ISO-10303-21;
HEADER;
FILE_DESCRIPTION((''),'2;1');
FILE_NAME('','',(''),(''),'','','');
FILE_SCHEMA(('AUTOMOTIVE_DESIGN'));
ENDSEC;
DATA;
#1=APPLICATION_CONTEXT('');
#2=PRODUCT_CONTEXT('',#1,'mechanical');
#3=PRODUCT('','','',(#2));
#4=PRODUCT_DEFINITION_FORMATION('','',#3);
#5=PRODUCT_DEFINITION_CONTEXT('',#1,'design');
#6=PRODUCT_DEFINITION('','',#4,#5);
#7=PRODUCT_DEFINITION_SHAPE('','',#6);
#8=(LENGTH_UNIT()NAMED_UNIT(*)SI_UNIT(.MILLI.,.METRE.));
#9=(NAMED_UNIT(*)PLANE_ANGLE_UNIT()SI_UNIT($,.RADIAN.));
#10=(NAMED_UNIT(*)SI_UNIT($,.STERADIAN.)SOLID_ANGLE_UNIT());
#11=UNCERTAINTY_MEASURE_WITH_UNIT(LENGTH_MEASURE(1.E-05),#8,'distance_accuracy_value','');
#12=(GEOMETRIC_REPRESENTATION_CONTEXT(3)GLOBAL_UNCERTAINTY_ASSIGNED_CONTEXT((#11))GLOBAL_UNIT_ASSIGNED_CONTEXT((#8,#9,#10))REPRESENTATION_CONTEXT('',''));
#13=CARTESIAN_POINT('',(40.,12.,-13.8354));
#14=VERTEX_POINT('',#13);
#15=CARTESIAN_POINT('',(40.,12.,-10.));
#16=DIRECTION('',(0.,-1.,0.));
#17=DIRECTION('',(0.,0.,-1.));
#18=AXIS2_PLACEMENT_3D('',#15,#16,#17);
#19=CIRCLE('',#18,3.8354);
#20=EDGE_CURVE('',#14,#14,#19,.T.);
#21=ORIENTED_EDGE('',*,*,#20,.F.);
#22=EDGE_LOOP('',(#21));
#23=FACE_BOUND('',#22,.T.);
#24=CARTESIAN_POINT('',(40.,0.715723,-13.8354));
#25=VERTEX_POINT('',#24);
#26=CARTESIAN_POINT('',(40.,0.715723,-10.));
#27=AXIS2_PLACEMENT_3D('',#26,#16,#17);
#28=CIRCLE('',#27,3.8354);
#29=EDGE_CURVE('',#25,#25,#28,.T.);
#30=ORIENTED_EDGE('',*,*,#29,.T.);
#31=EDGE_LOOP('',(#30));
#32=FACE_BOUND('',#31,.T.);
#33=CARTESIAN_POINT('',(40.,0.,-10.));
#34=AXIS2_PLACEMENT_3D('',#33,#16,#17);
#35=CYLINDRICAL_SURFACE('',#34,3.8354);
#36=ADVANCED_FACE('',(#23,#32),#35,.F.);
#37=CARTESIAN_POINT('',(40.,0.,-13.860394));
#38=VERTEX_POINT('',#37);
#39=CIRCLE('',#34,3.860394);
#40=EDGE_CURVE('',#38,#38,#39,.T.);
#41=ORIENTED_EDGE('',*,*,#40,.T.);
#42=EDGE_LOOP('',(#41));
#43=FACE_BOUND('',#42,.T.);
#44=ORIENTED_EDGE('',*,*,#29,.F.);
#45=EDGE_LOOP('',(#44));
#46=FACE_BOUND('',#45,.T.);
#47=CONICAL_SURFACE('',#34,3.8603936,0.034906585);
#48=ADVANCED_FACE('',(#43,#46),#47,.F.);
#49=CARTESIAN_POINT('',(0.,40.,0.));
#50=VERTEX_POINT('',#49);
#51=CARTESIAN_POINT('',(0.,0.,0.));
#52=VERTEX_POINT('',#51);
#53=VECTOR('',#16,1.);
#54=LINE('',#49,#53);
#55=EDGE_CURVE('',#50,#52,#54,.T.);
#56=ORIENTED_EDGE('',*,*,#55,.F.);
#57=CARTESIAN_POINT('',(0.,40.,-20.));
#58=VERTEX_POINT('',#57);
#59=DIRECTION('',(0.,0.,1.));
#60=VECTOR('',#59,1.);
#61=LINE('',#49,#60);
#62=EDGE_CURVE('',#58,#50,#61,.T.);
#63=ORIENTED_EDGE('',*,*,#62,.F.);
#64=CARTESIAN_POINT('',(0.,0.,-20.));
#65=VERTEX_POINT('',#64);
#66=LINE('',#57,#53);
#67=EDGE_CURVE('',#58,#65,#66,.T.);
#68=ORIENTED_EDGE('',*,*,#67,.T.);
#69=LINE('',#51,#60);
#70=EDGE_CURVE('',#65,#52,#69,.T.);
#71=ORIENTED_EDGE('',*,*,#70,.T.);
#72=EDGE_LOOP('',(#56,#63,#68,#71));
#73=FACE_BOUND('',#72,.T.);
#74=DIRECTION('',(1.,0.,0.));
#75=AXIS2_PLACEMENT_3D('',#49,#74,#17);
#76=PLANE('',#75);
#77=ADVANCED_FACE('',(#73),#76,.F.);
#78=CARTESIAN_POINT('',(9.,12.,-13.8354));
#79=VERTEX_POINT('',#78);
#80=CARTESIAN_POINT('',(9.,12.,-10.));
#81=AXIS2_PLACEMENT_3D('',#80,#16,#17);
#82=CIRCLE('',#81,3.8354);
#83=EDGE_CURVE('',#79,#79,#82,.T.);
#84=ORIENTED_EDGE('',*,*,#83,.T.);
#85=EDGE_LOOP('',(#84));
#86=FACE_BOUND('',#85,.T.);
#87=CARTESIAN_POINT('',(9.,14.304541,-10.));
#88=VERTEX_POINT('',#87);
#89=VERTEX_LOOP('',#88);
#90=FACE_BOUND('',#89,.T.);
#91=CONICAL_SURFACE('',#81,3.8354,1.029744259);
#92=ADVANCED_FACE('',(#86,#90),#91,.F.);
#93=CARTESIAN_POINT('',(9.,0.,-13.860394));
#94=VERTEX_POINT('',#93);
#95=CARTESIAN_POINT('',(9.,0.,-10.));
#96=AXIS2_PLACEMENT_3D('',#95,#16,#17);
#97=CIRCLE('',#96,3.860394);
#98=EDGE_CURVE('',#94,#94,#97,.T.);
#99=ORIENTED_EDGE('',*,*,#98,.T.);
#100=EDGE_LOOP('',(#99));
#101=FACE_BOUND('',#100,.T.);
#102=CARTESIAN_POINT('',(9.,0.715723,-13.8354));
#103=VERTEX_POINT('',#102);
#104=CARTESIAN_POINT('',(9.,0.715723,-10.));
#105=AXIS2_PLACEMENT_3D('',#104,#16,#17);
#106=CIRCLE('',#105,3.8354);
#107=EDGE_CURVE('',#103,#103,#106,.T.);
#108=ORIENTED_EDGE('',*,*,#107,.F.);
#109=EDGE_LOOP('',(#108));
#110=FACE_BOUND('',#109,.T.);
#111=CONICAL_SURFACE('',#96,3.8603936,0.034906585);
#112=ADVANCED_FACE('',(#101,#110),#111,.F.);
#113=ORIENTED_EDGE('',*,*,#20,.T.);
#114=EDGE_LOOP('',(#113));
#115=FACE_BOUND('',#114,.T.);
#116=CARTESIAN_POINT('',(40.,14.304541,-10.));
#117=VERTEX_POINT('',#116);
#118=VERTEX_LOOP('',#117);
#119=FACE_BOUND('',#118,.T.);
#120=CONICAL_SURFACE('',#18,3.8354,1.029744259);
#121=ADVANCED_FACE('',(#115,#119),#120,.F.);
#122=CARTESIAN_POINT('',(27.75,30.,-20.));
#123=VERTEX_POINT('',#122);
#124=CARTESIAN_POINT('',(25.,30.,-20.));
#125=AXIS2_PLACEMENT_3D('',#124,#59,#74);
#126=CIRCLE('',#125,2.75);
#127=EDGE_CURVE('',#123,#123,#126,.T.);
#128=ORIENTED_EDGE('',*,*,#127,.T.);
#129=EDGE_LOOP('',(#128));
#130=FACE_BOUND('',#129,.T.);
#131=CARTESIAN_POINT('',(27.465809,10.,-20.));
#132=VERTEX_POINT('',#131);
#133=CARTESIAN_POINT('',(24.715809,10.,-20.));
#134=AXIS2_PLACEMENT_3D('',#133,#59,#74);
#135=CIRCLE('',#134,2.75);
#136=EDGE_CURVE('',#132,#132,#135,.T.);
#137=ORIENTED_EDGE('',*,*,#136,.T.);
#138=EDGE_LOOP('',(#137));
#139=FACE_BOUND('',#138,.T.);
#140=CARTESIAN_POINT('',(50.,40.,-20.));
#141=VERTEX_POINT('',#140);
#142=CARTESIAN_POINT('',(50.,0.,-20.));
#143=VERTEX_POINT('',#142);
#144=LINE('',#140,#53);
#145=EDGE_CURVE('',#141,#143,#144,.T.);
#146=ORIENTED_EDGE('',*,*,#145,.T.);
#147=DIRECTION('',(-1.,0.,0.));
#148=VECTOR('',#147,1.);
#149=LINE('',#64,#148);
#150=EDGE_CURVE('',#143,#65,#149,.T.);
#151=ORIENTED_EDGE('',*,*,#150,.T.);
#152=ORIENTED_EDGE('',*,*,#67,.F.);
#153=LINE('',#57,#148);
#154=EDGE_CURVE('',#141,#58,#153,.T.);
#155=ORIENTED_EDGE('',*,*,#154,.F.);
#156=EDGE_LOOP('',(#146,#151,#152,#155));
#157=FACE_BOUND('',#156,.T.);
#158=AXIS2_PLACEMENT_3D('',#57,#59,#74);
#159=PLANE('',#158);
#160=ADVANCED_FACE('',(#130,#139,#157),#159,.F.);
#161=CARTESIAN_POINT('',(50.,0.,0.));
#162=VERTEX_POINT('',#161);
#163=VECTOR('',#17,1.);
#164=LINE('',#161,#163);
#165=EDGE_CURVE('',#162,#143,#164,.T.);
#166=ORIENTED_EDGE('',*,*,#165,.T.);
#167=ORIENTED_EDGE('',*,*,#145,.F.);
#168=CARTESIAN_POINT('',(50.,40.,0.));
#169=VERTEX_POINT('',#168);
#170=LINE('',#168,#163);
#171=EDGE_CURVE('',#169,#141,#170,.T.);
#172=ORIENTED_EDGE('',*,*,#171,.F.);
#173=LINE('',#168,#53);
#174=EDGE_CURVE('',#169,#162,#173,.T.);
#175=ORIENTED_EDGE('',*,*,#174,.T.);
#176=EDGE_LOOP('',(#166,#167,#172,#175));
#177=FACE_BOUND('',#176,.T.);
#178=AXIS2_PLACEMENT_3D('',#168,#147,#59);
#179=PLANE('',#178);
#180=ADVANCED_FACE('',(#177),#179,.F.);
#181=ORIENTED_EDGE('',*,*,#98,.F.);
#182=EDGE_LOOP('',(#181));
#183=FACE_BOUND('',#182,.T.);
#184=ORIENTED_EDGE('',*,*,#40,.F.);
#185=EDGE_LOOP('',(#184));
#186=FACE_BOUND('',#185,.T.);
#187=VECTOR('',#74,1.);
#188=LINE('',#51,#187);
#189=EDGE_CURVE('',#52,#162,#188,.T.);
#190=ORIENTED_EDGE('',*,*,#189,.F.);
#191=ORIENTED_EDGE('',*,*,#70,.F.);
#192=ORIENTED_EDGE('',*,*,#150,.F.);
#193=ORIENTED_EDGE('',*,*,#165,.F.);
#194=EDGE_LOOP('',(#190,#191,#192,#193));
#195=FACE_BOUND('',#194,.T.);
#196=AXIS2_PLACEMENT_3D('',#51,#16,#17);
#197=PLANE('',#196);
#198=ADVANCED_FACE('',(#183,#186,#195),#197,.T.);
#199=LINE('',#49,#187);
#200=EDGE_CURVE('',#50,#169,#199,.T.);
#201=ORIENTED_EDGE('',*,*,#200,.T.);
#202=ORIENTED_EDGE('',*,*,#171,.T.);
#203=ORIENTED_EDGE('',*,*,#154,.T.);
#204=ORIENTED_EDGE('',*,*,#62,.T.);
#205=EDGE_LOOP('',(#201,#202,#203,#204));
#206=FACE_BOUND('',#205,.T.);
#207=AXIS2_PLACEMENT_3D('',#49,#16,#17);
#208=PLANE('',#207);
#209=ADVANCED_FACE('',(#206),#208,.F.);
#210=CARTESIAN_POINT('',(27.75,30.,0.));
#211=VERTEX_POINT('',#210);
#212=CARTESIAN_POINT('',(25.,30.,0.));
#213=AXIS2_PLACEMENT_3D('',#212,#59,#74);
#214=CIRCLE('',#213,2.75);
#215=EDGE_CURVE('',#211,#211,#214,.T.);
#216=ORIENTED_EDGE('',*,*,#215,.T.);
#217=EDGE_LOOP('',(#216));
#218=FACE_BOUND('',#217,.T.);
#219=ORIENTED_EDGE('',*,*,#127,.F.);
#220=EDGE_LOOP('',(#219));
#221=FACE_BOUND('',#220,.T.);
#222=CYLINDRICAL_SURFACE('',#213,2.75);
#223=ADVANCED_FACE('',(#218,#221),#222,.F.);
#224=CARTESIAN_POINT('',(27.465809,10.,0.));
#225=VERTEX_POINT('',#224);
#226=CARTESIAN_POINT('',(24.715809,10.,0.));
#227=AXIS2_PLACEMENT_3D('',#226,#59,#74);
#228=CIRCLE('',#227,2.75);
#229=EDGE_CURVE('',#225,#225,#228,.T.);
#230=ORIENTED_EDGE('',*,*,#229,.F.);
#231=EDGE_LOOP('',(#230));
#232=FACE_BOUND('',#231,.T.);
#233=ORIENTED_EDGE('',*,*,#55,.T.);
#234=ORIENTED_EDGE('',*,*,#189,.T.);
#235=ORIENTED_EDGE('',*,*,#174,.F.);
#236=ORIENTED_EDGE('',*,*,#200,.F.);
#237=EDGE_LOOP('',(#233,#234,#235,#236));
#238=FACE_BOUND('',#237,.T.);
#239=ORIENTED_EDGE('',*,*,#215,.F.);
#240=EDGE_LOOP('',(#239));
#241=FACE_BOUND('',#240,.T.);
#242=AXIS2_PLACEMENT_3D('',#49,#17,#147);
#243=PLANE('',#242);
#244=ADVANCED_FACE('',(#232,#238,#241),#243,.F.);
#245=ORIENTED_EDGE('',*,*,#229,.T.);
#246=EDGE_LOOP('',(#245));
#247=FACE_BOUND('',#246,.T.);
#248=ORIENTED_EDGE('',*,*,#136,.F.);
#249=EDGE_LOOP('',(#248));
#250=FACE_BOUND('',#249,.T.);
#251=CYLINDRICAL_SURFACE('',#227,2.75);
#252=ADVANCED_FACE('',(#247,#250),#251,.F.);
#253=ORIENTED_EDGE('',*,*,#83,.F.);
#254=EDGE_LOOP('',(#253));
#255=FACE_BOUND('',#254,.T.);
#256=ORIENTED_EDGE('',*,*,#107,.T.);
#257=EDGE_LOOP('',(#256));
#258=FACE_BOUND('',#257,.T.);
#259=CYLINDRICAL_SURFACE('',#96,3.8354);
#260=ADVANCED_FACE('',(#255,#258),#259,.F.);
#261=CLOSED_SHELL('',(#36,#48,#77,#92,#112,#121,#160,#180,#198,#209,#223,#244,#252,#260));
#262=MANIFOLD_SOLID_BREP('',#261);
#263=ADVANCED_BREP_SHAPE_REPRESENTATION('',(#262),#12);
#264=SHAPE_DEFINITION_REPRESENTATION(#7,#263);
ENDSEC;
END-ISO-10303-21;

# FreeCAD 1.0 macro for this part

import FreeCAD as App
import Part
import Sketcher
from FreeCAD import Vector
Q = App.Units.Quantity

doc = App.newDocument("Part")
params = doc.addObject("Spreadsheet::Sheet", "Params")
for row, (alias, value) in enumerate([
    ("sketch1_width", "50 mm"),
    ("sketch1_height", "20 mm"),
    ("pad1_length", "40 mm"),
    ("sketch2_diameter", "5.5 mm"),
    ("hole_diameter", "5.5 mm"),
    ("groove_angle", "360 deg"),
    ("linearpattern_pitch", "31 mm"),
], start=1):
    params.set(f"A{row}", alias)
    params.set(f"B{row}", "=" + value)
    params.setAlias(f"B{row}", alias)

body = doc.addObject("PartDesign::Body", "Body")

# Sketch on XZ plane
sketch1 = body.newObject("Sketcher::SketchObject", "Sketch")
sketch1.AttachmentSupport = (doc.getObject("XZ_Plane"), [""])
sketch1.MapMode = "FlatFace"
sketch1.addGeometry([
    Part.LineSegment(Vector(0, -20, 0), Vector(0, 0, 0)),
    Part.LineSegment(Vector(0, 0, 0), Vector(50, 0, 0)),
    Part.LineSegment(Vector(50, 0, 0), Vector(50, -20, 0)),
    Part.LineSegment(Vector(50, -20, 0), Vector(0, -20, 0)),
], False)
sketch1.addConstraint([
    Sketcher.Constraint("Coincident", 0, 2, 1, 1),
    Sketcher.Constraint("Coincident", 1, 2, 2, 1),
    Sketcher.Constraint("Coincident", 2, 2, 3, 1),
    Sketcher.Constraint("Coincident", 3, 2, 0, 1),
    Sketcher.Constraint("Vertical", 0),
    Sketcher.Constraint("Horizontal", 1),
    Sketcher.Constraint("Vertical", 2),
    Sketcher.Constraint("Horizontal", 3),
    Sketcher.Constraint("Coincident", 0, 2, -1, 1),
    Sketcher.Constraint("DistanceX", 1, 1, 1, 2, 50.0),
    Sketcher.Constraint("DistanceY", 0, 1, 0, 2, 20.0),
])
sketch1.setExpression("Constraints[9]", "Params.sketch1_width")
sketch1.setExpression("Constraints[10]", "Params.sketch1_height")
pad1 = body.newObject("PartDesign::Pad", "Pad")
pad1.Profile = sketch1
pad1.setExpression("Length", "Params.pad1_length")
pad1.Reversed = True

# Sketch on XY plane
sketch2 = body.newObject("Sketcher::SketchObject", "Sketch001")
sketch2.AttachmentSupport = (doc.getObject("XY_Plane"), [""])
sketch2.MapMode = "FlatFace"
sketch2.addGeometry([
    Part.Circle(Vector(25, 30, 0), Vector(0, 0, 1), 2.75),
    Part.Circle(Vector(24.715809, 10, 0), Vector(0, 0, 1), 2.75),
], False)
sketch2.addConstraint([
    Sketcher.Constraint("Equal", 0, 1),
    Sketcher.Constraint("Diameter", 0, 5.5),
    Sketcher.Constraint("DistanceX", -1, 1, 0, 3, 25.0),
    Sketcher.Constraint("DistanceY", -1, 1, 0, 3, 30.0),
    Sketcher.Constraint("DistanceY", -1, 1, 1, 3, 10.0),
    Sketcher.Constraint("DistanceX", -1, 1, 1, 3, 24.715809),
])
sketch2.setExpression("Constraints[1]", "Params.sketch2_diameter")
doc.recompute()
hole = body.newObject("PartDesign::Hole", "Hole")
hole.Profile = sketch2
hole.ThreadType = "None"
hole.setExpression("Diameter", "Params.hole_diameter")
hole.DepthType = "ThroughAll"

# Sketch on YZ plane
sketch3 = body.newObject("Sketcher::SketchObject", "Sketch002")
sketch3.AttachmentSupport = (doc.getObject("YZ_Plane"), [""])
sketch3.MapMode = "FlatFace"
sketch3.AttachmentOffset = App.Placement(Vector(0, 0, 40), App.Rotation())
sketch3.addGeometry([
    Part.LineSegment(Vector(14.304541, -10, 0), Vector(0, -10, 0)),  # 0
    Part.LineSegment(Vector(0, -10, 0), Vector(0, -13.860394, 0)),  # 1
    Part.LineSegment(Vector(0, -13.860394, 0), Vector(0.715723, -13.8354, 0)),  # 2
    Part.LineSegment(Vector(0.715723, -13.8354, 0), Vector(12, -13.8354, 0)),  # 3
    Part.LineSegment(Vector(12, -13.8354, 0), Vector(14.304541, -10, 0)),  # 4
], False)
sketch3.addGeometry(Part.LineSegment(Vector(0, -10, 0), Vector(14.304541, -10, 0)), True)  # axis
sketch3.addConstraint([
    Sketcher.Constraint("Coincident", 0, 2, 1, 1),
    Sketcher.Constraint("Coincident", 1, 2, 2, 1),
    Sketcher.Constraint("Coincident", 2, 2, 3, 1),
    Sketcher.Constraint("Coincident", 3, 2, 4, 1),
    Sketcher.Constraint("Coincident", 4, 2, 0, 1),
    Sketcher.Constraint("Horizontal", 0),
    Sketcher.Constraint("Vertical", 1),
    Sketcher.Constraint("Horizontal", 3),
    Sketcher.Constraint("Horizontal", 5),
    Sketcher.Constraint("Coincident", 5, 1, 0, 2),
    Sketcher.Constraint("PointOnObject", 0, 2, -2),
    Sketcher.Constraint("Equal", 0, 5),
    Sketcher.Constraint("Angle", 2, Q("2 deg")),
    Sketcher.Constraint("Angle", 4, Q("59 deg")),
    Sketcher.Constraint("DistanceY", 0, 2, -1, 1, 10.0),
    Sketcher.Constraint("DistanceX", -1, 1, 3, 2, 12.0),
    Sketcher.Constraint("DistanceX", 0, 2, 0, 1, 14.304541),
    Sketcher.Constraint("Distance", 2, 0.716159),
])
groove = body.newObject("PartDesign::Groove", "Groove")
groove.Profile = sketch3
groove.ReferenceAxis = (sketch3, ["Axis0"])
groove.setExpression("Angle", "Params.groove_angle")
doc.recompute()

linearpattern = body.newObject("PartDesign::LinearPattern", "LinearPattern")
linearpattern.Originals = [groove]
linearpattern.Direction = (doc.getObject("X_Axis"), [""])
linearpattern.Mode = "offset"
linearpattern.setExpression("Offset", "Params.linearpattern_pitch")
linearpattern.Occurrences = 2
linearpattern.Reversed = True
body.Tip = linearpattern

doc.recompute()
